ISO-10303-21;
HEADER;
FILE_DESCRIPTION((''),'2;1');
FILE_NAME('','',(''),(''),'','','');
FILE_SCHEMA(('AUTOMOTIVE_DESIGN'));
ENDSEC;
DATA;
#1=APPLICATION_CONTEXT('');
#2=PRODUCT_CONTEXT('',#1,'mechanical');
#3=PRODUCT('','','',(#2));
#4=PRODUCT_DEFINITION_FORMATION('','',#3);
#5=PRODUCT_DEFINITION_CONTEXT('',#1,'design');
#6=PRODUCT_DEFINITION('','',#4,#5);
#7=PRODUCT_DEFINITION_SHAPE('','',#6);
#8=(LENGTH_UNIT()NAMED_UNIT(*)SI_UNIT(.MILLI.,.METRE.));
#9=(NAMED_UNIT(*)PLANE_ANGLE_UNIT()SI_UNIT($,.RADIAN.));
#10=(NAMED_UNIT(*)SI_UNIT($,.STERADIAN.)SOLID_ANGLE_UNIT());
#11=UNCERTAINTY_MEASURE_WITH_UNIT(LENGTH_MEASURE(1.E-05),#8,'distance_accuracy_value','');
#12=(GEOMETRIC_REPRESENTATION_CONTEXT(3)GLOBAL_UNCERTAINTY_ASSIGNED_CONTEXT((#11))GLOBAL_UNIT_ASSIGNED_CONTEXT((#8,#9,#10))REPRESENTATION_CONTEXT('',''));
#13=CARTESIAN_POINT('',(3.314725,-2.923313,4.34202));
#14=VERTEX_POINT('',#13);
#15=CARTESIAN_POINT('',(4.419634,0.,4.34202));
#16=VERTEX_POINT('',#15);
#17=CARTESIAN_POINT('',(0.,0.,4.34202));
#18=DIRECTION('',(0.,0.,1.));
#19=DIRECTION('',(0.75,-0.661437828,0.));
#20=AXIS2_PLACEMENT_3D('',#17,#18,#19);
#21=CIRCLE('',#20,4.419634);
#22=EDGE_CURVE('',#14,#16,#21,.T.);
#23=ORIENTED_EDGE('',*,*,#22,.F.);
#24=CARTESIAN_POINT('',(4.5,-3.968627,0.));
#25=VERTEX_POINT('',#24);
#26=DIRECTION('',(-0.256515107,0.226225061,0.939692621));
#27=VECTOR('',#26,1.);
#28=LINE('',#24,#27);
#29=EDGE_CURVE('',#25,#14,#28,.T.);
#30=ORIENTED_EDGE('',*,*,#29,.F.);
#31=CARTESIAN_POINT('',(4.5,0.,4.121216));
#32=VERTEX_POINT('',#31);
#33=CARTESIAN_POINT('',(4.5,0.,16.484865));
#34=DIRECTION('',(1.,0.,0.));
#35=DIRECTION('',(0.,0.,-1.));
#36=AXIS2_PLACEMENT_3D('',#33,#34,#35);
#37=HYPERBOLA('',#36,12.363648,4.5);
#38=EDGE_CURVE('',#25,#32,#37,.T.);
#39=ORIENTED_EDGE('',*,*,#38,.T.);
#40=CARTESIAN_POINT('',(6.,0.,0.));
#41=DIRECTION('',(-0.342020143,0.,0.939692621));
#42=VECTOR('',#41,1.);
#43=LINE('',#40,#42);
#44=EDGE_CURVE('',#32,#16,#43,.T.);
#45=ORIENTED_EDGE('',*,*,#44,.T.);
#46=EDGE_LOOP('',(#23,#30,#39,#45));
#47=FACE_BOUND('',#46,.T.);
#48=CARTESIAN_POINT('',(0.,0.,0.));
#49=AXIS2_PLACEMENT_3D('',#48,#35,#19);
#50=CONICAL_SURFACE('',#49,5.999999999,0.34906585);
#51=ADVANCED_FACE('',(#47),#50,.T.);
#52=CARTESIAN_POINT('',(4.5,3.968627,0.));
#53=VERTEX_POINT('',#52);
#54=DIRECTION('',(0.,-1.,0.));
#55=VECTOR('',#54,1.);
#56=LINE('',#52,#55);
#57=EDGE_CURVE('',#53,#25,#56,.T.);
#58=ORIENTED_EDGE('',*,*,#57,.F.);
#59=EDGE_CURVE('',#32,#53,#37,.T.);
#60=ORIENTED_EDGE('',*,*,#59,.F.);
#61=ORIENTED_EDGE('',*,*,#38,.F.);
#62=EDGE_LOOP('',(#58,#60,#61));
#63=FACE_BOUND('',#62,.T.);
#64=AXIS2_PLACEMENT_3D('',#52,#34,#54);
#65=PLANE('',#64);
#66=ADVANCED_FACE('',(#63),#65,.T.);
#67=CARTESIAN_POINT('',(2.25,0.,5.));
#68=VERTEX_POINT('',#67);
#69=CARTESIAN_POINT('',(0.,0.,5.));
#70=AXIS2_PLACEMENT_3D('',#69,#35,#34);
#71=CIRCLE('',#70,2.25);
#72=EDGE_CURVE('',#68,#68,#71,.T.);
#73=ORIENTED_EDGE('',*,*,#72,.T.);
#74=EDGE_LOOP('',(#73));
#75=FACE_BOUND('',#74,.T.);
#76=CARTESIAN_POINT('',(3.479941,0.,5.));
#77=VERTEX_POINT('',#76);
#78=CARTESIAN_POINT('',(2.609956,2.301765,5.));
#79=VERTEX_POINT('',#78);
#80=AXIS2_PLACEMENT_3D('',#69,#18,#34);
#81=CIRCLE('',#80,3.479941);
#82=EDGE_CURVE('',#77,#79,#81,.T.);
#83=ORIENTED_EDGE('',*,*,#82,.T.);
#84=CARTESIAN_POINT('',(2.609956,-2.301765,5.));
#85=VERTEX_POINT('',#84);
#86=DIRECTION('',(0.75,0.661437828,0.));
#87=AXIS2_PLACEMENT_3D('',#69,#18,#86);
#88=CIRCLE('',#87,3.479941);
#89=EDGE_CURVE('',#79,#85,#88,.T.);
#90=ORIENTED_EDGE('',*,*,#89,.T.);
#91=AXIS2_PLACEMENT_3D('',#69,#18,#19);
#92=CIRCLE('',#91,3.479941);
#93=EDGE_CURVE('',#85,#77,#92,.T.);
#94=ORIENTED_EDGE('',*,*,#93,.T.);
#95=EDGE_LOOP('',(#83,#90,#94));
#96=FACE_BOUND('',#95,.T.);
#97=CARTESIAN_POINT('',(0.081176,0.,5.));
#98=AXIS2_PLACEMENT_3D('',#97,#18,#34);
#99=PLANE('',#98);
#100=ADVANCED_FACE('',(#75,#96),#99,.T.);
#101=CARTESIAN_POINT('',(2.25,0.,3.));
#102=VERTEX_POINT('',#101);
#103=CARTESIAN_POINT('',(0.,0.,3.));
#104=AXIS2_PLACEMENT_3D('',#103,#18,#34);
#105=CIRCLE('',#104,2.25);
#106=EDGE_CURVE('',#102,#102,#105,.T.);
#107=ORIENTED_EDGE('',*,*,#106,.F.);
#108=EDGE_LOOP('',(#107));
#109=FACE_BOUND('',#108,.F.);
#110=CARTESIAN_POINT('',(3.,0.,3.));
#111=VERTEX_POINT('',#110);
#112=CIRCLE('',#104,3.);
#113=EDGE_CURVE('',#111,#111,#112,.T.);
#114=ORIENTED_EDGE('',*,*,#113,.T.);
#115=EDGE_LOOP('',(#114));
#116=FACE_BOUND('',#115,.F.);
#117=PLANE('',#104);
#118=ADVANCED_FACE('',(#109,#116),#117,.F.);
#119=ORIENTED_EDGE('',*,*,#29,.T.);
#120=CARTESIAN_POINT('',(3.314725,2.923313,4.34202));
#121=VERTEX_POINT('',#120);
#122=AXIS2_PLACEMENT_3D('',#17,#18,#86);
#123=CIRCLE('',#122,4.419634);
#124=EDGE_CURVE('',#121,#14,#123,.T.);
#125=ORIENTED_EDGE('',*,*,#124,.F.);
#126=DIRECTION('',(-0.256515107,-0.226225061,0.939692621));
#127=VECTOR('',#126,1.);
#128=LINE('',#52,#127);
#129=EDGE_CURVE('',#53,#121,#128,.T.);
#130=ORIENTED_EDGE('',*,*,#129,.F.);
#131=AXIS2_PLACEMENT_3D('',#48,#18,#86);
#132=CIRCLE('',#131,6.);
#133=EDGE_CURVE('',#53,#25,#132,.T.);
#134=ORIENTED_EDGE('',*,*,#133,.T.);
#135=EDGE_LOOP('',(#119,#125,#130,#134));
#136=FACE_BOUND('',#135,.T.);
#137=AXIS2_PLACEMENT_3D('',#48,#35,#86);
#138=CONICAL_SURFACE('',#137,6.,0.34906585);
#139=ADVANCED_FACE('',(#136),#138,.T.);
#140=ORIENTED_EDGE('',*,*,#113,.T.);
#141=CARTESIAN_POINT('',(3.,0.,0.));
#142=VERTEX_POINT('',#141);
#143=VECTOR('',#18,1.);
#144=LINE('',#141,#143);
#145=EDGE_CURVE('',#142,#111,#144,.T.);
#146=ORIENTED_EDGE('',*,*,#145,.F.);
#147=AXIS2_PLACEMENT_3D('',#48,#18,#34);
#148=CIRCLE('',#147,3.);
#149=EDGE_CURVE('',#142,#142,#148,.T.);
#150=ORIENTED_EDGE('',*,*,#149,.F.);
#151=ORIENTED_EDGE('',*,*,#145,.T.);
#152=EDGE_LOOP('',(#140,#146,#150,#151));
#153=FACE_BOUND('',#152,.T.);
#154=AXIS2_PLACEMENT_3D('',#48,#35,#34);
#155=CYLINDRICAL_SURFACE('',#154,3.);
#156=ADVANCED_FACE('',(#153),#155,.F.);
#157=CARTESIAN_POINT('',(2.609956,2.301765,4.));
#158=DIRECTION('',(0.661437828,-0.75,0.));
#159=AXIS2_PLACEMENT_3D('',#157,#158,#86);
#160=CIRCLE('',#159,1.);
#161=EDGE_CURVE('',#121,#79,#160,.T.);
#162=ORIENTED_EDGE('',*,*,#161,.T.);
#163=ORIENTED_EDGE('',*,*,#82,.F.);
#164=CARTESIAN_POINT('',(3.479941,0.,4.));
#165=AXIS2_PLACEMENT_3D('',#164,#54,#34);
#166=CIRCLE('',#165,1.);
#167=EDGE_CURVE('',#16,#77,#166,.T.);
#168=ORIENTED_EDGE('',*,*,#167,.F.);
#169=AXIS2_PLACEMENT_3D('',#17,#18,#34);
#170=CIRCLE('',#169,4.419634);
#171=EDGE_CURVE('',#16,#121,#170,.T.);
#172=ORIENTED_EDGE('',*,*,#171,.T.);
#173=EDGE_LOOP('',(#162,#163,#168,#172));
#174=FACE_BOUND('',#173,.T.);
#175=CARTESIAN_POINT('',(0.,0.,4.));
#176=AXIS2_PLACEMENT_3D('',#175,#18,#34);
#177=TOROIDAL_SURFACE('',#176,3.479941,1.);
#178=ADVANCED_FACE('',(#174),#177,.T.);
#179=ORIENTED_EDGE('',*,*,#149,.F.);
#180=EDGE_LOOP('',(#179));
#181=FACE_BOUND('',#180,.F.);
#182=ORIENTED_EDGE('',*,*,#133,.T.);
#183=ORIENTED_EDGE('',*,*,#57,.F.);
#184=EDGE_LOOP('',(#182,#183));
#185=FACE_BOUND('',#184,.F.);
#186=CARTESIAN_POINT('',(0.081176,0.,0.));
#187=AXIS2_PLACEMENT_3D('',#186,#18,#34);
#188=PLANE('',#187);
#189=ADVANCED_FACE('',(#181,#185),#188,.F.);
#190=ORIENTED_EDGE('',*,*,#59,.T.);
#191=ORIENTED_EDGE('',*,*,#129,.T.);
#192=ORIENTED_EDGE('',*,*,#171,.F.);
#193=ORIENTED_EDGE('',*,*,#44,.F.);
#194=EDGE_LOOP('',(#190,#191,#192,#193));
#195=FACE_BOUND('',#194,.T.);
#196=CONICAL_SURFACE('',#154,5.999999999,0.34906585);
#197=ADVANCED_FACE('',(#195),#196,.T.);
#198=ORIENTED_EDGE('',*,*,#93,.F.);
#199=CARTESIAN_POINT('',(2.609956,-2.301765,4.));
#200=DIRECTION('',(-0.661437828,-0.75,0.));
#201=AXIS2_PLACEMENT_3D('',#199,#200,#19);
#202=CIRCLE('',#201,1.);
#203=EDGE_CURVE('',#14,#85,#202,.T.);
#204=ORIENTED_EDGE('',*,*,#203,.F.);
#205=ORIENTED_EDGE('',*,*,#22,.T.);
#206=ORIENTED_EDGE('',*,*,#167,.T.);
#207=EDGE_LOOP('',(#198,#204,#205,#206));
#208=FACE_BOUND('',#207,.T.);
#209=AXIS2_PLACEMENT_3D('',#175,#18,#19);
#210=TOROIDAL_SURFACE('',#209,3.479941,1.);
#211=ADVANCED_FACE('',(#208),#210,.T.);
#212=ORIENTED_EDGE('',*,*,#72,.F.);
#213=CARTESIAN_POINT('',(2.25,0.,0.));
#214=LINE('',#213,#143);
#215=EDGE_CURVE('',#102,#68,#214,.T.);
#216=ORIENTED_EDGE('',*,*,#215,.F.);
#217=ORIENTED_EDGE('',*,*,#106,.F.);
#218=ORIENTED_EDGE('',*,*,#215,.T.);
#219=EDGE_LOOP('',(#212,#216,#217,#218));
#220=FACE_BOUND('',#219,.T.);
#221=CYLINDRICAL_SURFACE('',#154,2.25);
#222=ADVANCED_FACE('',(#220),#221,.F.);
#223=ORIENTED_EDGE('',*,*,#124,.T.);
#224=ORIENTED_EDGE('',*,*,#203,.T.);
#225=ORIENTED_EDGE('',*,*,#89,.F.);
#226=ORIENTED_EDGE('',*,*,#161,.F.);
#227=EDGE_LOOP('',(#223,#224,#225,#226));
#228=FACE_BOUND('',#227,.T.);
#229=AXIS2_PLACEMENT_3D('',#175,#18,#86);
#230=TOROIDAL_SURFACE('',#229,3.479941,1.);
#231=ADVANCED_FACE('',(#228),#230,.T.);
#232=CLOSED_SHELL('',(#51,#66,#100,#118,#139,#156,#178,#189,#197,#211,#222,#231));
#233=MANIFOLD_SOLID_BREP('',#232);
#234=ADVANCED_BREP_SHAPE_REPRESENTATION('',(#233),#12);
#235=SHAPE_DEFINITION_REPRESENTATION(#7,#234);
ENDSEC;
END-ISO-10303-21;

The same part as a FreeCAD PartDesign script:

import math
import FreeCAD as App
import Part
import Sketcher

V = App.Vector
Q = App.Units.Quantity


def edges_at(feature, points):
    """Names of the edges that pass closest to the given points."""
    edges = feature.Shape.Edges
    near = lambda p: min(range(len(edges)), key=lambda i: edges[i].distToShape(Part.Vertex(*p))[0])
    return sorted({f"Edge{near(p) + 1}" for p in points})

doc = App.newDocument("Part")
body = doc.addObject("PartDesign::Body", "Body")

# Sketch on XY plane
sketch1 = body.newObject("Sketcher::SketchObject", "Sketch")
sketch1.AttachmentSupport = (doc.getObject("XY_Plane"), [""])
sketch1.MapMode = "FlatFace"
sketch1.addGeometry(Part.ArcOfCircle(Part.Circle(V(0, 0, 0), V(0, 0, 1), 6), math.radians(41.409622), math.radians(318.590378)), False)
sketch1.addGeometry(Part.ArcOfCircle(Part.Circle(V(0, 0, 0), V(0, 0, 1), 6), math.radians(-41.409622), math.radians(0)), False)
sketch1.addGeometry(Part.ArcOfCircle(Part.Circle(V(0, 0, 0), V(0, 0, 1), 6), math.radians(0), math.radians(41.409622)), False)
sketch1.addConstraint(Sketcher.Constraint("Tangent", 0, 2, 1, 1))
sketch1.addConstraint(Sketcher.Constraint("Tangent", 1, 2, 2, 1))
sketch1.addConstraint(Sketcher.Constraint("Tangent", 2, 2, 0, 1))
sketch1.addConstraint(Sketcher.Constraint("Coincident", 0, 3, -1, 1))
sketch1.addConstraint(Sketcher.Constraint("PointOnObject", 1, 2, -1))
sketch1.addConstraint(Sketcher.Constraint("Vertical", 0, 2, 2, 2))
sketch1.addConstraint(Sketcher.Constraint("Radius", 0, Q("6 mm")))
sketch1.addConstraint(Sketcher.Constraint("DistanceX", -1, 1, 0, 2, Q("4.5 mm")))
pad1 = body.newObject("PartDesign::Pad", "Pad")
pad1.Profile = sketch1
pad1.Length = 5
pad1.TaperAngle = -20

# Sketch on XY plane
sketch2 = body.newObject("Sketcher::SketchObject", "Sketch001")
sketch2.AttachmentSupport = (doc.getObject("XY_Plane"), [""])
sketch2.MapMode = "FlatFace"
sketch2.addGeometry(Part.Circle(V(0, 0, 0), V(0, 0, 1), 3), False)
sketch2.addGeometry(Part.Circle(V(0, 0, 0), V(0, 0, 1), 2.25), False)
sketch2.addConstraint(Sketcher.Constraint("Coincident", 0, 3, -1, 1))
sketch2.addConstraint(Sketcher.Constraint("Coincident", 1, 3, -1, 1))
sketch2.addConstraint(Sketcher.Constraint("Diameter", 0, Q("6 mm")))
sketch2.addConstraint(Sketcher.Constraint("Diameter", 1, Q("4.5 mm")))
pocket1 = body.newObject("PartDesign::Pocket", "Pocket")
pocket1.Profile = sketch2
pocket1.Length = 3
pocket1.Reversed = True

# Sketch on XY plane
sketch3 = body.newObject("Sketcher::SketchObject", "Sketch002")
sketch3.AttachmentSupport = (doc.getObject("XY_Plane"), [""])
sketch3.MapMode = "FlatFace"
sketch3.addGeometry(Part.Circle(V(0, 0, 0), V(0, 0, 1), 2.25), False)
sketch3.addConstraint(Sketcher.Constraint("Coincident", 0, 3, -1, 1))
sketch3.addConstraint(Sketcher.Constraint("Diameter", 0, Q("4.5 mm")))
pocket2 = body.newObject("PartDesign::Pocket", "Pocket001")
pocket2.Profile = sketch3
pocket2.Length = 25
pocket2.Reversed = True
doc.recompute()

fillet = body.newObject("PartDesign::Fillet", "Fillet")
fillet.Base = (pocket2, edges_at(pocket2, [(-4.18, 0, 5)]))
fillet.Radius = 1

# Sketch on XY plane
sketch4 = body.newObject("Sketcher::SketchObject", "Sketch003")
sketch4.AttachmentSupport = (doc.getObject("XY_Plane"), [""])
sketch4.MapMode = "FlatFace"
sketch4.addGeometry(Part.ArcOfCircle(Part.Circle(V(0, 0, 0), V(0, 0, 1), 6), math.radians(-41.409622), math.radians(0)), False)
sketch4.addGeometry(Part.ArcOfCircle(Part.Circle(V(0, 0, 0), V(0, 0, 1), 6), math.radians(0), math.radians(41.409622)), False)
sketch4.addGeometry(Part.LineSegment(V(4.5, 3.968627, 0), V(4.5, -3.968627, 0)), False)
sketch4.addConstraint(Sketcher.Constraint("Tangent", 0, 2, 1, 1))
sketch4.addConstraint(Sketcher.Constraint("Coincident", 1, 2, 2, 1))
sketch4.addConstraint(Sketcher.Constraint("Coincident", 2, 2, 0, 1))
sketch4.addConstraint(Sketcher.Constraint("Vertical", 2))
sketch4.addConstraint(Sketcher.Constraint("Coincident", 0, 3, -1, 1))
sketch4.addConstraint(Sketcher.Constraint("Equal", 0, 1))
sketch4.addConstraint(Sketcher.Constraint("PointOnObject", 0, 2, -1))
sketch4.addConstraint(Sketcher.Constraint("Radius", 0, Q("6 mm")))
sketch4.addConstraint(Sketcher.Constraint("DistanceX", -1, 1, 1, 2, Q("4.5 mm")))
pocket3 = body.newObject("PartDesign::Pocket", "Pocket002")
pocket3.Profile = sketch4
pocket3.Length = 25
pocket3.Reversed = True

doc.recompute()
